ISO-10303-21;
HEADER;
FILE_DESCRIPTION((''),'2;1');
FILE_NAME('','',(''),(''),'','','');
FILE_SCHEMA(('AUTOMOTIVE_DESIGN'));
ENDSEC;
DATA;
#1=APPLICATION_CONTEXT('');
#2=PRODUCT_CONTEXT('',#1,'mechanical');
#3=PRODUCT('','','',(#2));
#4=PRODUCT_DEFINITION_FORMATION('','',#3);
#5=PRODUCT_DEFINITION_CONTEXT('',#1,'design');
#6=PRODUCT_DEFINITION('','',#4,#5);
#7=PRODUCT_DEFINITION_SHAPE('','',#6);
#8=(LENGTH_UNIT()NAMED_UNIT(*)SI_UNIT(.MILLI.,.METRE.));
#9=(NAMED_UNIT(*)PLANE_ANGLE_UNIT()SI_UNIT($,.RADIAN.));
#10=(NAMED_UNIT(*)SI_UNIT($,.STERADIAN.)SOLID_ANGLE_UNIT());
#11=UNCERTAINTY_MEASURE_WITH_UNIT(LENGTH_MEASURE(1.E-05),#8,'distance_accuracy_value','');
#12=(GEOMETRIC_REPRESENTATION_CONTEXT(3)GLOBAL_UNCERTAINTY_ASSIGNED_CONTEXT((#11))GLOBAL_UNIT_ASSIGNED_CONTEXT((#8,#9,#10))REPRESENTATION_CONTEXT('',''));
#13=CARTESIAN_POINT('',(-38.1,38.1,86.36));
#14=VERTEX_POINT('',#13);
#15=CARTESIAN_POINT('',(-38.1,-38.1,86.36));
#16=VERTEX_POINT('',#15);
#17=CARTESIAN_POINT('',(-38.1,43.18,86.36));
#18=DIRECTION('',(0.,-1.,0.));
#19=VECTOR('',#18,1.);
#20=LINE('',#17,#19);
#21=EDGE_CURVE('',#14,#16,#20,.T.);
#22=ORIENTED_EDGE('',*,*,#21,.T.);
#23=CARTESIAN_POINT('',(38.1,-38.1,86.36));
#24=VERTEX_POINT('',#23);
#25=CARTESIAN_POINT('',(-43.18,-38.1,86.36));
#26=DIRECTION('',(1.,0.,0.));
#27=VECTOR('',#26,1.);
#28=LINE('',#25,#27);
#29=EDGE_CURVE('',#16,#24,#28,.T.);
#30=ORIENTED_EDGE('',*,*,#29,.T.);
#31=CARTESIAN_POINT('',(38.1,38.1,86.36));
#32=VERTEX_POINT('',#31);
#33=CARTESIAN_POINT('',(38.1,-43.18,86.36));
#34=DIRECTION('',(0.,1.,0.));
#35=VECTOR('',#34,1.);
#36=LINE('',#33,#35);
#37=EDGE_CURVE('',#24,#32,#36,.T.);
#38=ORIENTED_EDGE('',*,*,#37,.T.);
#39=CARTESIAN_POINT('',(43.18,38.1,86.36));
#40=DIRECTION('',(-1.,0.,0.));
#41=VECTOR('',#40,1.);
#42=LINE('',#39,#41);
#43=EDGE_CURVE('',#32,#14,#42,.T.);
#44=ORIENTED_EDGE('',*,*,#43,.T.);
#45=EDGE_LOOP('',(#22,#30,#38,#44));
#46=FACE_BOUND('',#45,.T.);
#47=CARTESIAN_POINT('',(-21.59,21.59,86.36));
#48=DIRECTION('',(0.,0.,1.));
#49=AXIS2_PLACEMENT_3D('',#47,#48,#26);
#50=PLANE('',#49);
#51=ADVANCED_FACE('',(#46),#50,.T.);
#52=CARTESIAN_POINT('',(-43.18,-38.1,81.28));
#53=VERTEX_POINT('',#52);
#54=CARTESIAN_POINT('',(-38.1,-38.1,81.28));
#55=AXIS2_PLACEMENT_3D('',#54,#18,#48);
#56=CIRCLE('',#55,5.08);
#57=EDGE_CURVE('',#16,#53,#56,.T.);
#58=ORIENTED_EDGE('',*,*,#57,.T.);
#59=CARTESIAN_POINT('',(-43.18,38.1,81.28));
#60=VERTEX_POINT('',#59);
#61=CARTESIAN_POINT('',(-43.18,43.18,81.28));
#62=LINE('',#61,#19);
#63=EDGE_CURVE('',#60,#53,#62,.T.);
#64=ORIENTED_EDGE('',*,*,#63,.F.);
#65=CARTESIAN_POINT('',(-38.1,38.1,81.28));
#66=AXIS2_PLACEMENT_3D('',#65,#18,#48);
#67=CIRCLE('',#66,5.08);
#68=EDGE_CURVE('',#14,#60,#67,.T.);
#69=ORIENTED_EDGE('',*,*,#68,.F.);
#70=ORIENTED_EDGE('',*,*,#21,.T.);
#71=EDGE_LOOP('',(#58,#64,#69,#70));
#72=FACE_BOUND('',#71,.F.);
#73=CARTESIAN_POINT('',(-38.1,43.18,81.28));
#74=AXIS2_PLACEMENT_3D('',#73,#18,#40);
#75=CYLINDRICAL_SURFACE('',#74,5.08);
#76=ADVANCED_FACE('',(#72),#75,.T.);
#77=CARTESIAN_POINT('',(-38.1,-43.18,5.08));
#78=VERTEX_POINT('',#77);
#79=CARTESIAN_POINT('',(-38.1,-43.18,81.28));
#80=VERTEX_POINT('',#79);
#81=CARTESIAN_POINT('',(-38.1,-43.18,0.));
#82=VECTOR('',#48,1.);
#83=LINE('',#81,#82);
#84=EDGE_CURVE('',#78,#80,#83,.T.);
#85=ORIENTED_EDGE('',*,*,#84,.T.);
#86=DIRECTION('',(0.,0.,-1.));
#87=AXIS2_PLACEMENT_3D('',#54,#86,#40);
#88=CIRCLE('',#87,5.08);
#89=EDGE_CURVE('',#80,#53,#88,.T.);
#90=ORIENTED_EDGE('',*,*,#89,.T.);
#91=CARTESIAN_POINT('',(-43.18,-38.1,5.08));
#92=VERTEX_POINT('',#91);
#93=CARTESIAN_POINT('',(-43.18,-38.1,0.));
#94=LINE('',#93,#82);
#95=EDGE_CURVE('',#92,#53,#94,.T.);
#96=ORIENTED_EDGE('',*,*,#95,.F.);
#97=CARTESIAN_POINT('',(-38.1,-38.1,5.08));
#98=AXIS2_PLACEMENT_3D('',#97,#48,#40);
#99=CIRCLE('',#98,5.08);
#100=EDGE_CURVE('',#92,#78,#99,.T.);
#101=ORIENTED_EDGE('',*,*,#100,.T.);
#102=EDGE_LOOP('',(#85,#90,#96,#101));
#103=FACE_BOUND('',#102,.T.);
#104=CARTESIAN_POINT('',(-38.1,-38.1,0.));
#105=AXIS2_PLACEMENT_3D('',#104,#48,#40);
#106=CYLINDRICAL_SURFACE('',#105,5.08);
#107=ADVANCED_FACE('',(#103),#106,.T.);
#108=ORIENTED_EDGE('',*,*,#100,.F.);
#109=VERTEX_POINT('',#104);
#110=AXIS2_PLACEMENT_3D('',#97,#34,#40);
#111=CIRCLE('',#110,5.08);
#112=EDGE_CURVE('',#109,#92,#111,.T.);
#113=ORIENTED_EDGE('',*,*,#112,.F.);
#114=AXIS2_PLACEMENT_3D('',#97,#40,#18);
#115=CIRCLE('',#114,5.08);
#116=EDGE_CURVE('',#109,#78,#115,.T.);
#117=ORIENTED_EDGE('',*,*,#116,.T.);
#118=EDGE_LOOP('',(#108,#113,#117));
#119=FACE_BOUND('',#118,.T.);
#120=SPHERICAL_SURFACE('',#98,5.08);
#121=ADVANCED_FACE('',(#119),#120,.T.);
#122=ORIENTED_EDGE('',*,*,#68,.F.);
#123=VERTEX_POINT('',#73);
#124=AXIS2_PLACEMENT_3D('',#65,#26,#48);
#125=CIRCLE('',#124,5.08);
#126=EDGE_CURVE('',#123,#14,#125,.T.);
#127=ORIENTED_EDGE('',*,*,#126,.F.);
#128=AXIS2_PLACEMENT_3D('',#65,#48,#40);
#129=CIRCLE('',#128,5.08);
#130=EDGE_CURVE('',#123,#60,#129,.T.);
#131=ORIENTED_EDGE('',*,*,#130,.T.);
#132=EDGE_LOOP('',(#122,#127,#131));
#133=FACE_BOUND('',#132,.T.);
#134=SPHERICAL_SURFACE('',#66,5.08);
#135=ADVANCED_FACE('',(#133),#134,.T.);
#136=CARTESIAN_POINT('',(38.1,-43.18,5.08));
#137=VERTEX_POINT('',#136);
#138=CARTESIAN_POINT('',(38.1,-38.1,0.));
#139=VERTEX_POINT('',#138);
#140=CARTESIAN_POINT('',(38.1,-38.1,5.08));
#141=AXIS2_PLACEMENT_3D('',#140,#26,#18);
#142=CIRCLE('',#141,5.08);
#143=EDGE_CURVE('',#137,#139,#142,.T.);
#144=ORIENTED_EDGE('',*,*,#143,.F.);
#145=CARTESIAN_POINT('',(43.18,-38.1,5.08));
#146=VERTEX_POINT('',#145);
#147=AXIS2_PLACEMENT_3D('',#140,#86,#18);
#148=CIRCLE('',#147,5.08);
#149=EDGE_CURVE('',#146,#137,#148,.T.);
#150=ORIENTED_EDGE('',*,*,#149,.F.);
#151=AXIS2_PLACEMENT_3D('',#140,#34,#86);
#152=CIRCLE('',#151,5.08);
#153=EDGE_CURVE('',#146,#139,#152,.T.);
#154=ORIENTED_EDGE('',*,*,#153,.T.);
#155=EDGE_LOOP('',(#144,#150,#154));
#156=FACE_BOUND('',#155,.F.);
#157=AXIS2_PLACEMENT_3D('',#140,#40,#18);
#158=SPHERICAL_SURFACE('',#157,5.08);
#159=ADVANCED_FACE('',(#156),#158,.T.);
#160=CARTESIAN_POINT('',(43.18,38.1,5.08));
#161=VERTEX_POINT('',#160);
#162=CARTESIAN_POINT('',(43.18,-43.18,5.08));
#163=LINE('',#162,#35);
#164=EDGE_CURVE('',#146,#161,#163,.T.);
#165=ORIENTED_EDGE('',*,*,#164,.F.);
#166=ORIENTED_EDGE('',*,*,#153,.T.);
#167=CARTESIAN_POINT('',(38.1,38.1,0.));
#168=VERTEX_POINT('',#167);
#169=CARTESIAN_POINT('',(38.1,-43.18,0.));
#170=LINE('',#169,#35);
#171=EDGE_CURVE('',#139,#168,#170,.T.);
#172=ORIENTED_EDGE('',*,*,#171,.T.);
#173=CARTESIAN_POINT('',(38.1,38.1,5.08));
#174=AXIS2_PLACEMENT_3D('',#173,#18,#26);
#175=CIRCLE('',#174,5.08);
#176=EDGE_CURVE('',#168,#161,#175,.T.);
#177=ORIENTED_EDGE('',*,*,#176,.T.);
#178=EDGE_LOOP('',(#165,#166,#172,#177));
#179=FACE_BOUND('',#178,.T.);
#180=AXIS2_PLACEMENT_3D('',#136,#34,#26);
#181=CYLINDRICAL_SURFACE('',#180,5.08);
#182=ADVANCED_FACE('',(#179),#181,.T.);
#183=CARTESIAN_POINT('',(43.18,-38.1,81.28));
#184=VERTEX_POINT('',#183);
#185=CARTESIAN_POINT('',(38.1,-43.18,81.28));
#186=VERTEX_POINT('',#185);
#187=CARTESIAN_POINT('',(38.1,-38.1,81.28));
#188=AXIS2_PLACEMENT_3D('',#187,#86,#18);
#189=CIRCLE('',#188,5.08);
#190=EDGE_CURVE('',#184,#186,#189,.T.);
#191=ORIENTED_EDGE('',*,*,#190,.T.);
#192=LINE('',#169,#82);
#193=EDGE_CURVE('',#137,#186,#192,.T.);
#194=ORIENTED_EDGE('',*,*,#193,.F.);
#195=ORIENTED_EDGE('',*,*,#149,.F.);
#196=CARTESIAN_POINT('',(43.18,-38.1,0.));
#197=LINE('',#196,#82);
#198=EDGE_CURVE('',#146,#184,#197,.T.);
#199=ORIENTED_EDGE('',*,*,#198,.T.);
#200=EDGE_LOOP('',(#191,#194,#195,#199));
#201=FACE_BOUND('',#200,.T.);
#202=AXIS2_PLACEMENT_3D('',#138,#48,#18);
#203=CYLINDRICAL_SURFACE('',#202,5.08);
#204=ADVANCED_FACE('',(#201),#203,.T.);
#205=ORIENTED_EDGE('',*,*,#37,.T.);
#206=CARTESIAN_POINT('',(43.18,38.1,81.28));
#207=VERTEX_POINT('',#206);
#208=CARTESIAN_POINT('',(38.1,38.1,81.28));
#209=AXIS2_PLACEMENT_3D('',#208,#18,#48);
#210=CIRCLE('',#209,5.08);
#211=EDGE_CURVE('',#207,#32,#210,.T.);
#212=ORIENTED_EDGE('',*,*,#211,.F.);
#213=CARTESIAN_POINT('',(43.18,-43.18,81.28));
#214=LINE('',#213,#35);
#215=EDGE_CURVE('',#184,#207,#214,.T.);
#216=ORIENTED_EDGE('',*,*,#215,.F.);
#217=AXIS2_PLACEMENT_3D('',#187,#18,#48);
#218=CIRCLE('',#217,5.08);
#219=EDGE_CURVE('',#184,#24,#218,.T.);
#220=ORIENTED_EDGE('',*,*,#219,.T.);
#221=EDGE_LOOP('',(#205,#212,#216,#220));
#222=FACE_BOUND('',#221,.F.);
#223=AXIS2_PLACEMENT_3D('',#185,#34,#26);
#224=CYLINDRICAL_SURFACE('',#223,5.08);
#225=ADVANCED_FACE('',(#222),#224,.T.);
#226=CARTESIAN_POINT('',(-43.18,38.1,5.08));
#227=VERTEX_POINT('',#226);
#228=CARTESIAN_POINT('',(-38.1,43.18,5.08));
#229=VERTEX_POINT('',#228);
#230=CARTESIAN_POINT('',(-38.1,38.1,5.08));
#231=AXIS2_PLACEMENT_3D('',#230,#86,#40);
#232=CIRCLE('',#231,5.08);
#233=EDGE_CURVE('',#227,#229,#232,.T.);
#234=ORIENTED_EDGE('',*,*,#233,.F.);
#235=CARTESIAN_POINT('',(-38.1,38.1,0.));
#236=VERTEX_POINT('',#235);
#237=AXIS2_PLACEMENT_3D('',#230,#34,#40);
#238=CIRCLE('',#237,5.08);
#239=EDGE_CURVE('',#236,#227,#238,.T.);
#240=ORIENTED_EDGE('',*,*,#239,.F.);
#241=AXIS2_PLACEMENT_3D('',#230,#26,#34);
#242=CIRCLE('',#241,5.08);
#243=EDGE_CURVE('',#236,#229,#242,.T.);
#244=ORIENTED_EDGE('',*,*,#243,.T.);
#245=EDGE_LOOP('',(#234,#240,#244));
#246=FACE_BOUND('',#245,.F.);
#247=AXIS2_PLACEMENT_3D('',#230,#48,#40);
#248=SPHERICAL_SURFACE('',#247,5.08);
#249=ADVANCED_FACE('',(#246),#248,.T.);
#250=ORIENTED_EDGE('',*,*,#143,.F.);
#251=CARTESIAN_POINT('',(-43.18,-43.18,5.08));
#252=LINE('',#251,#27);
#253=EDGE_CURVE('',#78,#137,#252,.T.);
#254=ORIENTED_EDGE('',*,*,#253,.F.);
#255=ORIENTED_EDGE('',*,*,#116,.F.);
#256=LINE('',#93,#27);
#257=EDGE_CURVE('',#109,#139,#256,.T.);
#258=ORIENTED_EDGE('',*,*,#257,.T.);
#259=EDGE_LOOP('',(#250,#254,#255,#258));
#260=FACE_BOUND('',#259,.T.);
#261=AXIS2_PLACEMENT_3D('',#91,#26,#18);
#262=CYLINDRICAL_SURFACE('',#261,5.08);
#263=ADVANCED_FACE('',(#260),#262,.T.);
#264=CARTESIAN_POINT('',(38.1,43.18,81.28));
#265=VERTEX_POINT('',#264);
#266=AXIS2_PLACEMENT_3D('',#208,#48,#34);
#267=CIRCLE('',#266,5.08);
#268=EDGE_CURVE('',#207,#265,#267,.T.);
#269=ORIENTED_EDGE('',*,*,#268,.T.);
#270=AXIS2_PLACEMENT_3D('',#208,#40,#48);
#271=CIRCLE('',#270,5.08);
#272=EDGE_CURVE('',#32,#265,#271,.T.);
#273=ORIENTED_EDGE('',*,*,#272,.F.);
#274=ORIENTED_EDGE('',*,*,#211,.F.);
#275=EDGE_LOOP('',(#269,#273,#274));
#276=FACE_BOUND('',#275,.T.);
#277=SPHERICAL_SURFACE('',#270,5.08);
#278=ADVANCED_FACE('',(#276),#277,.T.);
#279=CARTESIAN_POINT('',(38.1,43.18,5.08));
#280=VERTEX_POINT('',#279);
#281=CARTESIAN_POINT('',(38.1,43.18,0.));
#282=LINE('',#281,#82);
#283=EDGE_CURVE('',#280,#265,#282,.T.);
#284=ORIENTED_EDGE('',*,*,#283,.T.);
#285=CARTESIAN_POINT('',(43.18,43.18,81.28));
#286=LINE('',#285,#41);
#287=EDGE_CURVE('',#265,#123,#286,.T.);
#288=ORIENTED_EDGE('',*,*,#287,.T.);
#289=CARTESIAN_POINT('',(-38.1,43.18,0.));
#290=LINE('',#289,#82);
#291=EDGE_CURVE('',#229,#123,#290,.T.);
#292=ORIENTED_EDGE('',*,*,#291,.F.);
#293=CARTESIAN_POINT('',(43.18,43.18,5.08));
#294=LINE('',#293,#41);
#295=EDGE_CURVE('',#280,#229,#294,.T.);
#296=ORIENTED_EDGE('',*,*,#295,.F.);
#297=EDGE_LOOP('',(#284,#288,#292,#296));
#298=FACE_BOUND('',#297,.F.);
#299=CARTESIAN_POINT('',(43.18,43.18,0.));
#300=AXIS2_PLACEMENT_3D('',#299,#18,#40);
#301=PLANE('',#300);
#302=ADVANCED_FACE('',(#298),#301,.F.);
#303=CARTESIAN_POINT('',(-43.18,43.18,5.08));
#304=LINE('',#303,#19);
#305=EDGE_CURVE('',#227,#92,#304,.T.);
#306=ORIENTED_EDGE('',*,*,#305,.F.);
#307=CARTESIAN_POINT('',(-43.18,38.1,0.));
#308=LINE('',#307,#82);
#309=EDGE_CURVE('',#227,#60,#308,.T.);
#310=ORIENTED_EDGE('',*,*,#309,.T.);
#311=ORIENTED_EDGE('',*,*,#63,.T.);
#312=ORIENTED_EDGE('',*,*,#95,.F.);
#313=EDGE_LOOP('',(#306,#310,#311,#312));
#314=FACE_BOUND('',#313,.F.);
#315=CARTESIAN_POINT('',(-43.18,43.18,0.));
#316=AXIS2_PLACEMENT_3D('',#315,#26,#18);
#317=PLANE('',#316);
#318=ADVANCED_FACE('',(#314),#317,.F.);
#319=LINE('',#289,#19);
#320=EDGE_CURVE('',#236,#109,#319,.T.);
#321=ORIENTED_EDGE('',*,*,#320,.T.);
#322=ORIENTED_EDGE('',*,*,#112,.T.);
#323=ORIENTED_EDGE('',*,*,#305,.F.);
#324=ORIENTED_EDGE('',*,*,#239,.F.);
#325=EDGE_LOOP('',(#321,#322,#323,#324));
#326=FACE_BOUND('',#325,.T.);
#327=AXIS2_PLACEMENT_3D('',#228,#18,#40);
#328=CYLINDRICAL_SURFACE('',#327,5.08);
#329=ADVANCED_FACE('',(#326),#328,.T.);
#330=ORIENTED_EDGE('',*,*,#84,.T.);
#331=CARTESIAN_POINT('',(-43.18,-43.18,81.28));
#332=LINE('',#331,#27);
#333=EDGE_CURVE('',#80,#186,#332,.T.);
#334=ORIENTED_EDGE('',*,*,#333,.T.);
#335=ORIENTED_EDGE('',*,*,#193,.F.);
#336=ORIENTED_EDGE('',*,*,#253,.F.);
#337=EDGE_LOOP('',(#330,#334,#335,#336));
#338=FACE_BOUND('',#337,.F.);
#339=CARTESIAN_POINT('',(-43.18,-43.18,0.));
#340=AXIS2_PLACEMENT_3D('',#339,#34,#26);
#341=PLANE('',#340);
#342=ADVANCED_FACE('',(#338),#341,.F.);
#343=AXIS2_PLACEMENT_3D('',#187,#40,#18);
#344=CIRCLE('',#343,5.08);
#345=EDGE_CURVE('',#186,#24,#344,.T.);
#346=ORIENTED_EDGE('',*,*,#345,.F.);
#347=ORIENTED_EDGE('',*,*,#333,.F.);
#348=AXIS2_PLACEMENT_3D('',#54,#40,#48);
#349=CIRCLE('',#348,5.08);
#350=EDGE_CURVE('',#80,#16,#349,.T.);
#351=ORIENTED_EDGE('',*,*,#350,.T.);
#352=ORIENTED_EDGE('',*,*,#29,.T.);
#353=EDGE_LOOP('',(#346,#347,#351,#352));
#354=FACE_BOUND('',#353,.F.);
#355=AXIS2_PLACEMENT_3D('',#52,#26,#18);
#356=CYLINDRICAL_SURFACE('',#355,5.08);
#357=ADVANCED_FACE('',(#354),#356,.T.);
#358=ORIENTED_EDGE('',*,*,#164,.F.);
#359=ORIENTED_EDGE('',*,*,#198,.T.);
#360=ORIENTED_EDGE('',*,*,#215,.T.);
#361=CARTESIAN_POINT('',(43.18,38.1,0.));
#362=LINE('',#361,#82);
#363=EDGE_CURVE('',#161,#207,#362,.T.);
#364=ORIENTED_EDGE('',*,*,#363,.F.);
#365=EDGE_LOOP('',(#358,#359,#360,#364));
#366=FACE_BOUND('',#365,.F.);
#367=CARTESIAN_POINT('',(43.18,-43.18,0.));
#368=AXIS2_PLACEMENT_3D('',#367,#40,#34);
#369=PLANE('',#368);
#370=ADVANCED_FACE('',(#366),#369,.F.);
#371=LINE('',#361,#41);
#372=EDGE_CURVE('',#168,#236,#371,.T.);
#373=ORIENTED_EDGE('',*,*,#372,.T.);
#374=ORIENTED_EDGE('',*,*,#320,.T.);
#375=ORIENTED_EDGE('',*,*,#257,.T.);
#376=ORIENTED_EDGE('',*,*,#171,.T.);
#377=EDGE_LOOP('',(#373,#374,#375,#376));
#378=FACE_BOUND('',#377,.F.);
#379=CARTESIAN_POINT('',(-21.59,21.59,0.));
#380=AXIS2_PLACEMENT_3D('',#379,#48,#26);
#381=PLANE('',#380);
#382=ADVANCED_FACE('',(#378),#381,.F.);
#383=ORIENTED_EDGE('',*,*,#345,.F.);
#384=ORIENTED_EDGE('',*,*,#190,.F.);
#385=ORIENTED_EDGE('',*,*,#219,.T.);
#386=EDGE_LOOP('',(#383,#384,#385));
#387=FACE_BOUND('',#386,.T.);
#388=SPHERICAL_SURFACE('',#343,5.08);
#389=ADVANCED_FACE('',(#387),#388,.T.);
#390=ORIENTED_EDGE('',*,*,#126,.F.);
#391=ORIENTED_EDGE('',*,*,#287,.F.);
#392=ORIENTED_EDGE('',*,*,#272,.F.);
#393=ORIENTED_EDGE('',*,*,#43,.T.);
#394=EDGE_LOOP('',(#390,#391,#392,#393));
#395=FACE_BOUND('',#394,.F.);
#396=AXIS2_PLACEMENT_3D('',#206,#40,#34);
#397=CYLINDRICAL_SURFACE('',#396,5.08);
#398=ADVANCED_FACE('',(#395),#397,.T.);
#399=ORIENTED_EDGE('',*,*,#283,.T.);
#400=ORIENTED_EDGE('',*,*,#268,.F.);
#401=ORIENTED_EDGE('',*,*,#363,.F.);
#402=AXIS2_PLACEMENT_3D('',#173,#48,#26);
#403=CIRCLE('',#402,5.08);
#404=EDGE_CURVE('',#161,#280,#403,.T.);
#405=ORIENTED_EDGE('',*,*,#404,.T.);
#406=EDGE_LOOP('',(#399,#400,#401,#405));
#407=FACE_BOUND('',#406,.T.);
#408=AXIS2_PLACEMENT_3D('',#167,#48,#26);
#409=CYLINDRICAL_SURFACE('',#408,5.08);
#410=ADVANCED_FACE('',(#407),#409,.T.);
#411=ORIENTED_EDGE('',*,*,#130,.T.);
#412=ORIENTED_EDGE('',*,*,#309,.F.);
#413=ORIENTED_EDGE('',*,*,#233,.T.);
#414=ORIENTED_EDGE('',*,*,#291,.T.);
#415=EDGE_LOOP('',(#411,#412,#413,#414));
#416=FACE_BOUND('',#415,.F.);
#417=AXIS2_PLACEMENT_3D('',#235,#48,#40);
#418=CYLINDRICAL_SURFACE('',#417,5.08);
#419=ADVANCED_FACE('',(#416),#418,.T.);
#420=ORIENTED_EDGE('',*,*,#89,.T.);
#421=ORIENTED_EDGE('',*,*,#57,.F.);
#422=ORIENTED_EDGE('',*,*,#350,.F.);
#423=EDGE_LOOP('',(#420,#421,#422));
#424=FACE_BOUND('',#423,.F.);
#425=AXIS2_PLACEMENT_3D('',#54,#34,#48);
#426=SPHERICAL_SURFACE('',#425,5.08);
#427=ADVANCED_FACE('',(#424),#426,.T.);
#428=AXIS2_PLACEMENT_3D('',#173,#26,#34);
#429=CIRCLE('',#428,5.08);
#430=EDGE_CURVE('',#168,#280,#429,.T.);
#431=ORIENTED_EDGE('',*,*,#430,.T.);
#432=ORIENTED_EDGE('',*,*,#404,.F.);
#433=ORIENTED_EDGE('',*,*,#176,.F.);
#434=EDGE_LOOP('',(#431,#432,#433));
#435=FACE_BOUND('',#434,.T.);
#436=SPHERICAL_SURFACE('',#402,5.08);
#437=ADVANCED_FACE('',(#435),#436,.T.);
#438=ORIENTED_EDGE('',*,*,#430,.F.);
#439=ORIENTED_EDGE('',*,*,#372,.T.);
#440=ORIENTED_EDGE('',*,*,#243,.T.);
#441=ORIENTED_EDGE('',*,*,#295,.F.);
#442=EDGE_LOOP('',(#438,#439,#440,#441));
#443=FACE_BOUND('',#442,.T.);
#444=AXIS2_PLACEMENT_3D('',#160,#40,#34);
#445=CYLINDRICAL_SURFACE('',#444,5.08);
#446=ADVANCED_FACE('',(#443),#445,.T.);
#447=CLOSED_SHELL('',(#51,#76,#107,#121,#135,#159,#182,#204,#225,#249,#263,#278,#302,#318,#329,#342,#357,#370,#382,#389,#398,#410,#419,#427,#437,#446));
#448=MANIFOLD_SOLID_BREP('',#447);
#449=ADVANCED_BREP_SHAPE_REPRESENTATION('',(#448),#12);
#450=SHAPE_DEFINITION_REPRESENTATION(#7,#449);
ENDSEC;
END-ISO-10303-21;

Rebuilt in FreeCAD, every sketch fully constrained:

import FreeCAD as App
import Part
import Sketcher

V = App.Vector
Q = App.Units.Quantity

doc = App.newDocument("Part")
body = doc.addObject("PartDesign::Body", "Body")

sketch1 = doc.addObject("Sketcher::SketchObject", "Sketch")
body.addObject(sketch1)
sketch1.AttachmentSupport = (doc.XY_Plane, [""])
sketch1.MapMode = "FlatFace"
sketch1.addGeometry(Part.LineSegment(V(-43, 43, 0), V(-43, -43, 0)), False)
sketch1.addGeometry(Part.LineSegment(V(-43, -43, 0), V(43, -43, 0)), False)
sketch1.addGeometry(Part.LineSegment(V(43, -43, 0), V(43, 43, 0)), False)
sketch1.addGeometry(Part.LineSegment(V(43, 43, 0), V(-43, 43, 0)), False)
sketch1.addConstraint(Sketcher.Constraint("Coincident", 0, 2, 1, 1))
sketch1.addConstraint(Sketcher.Constraint("Coincident", 1, 2, 2, 1))
sketch1.addConstraint(Sketcher.Constraint("Coincident", 2, 2, 3, 1))
sketch1.addConstraint(Sketcher.Constraint("Coincident", 3, 2, 0, 1))
sketch1.addConstraint(Sketcher.Constraint("Vertical", 0))
sketch1.addConstraint(Sketcher.Constraint("Horizontal", 1))
sketch1.addConstraint(Sketcher.Constraint("Vertical", 2))
sketch1.addConstraint(Sketcher.Constraint("Horizontal", 3))
sketch1.addConstraint(Sketcher.Constraint("Symmetric", 0, 2, 2, 2, -1, 1))
sketch1.addConstraint(Sketcher.Constraint("Equal", 3, 0))
sketch1.addConstraint(Sketcher.Constraint("DistanceX", 1, 1, 1, 2, Q("3.4 in")))
pad1 = doc.addObject("PartDesign::Pad", "Pad")
body.addObject(pad1)
pad1.Profile = sketch1
pad1.Length = Q("3.4 in")
doc.recompute()

fillet = doc.addObject("PartDesign::Fillet", "Fillet")
body.addObject(fillet)
fillet.Base = (pad1, ["Edge1"])
fillet.UseAllEdges = True
fillet.Radius = Q("0.2 in")

doc.recompute()
